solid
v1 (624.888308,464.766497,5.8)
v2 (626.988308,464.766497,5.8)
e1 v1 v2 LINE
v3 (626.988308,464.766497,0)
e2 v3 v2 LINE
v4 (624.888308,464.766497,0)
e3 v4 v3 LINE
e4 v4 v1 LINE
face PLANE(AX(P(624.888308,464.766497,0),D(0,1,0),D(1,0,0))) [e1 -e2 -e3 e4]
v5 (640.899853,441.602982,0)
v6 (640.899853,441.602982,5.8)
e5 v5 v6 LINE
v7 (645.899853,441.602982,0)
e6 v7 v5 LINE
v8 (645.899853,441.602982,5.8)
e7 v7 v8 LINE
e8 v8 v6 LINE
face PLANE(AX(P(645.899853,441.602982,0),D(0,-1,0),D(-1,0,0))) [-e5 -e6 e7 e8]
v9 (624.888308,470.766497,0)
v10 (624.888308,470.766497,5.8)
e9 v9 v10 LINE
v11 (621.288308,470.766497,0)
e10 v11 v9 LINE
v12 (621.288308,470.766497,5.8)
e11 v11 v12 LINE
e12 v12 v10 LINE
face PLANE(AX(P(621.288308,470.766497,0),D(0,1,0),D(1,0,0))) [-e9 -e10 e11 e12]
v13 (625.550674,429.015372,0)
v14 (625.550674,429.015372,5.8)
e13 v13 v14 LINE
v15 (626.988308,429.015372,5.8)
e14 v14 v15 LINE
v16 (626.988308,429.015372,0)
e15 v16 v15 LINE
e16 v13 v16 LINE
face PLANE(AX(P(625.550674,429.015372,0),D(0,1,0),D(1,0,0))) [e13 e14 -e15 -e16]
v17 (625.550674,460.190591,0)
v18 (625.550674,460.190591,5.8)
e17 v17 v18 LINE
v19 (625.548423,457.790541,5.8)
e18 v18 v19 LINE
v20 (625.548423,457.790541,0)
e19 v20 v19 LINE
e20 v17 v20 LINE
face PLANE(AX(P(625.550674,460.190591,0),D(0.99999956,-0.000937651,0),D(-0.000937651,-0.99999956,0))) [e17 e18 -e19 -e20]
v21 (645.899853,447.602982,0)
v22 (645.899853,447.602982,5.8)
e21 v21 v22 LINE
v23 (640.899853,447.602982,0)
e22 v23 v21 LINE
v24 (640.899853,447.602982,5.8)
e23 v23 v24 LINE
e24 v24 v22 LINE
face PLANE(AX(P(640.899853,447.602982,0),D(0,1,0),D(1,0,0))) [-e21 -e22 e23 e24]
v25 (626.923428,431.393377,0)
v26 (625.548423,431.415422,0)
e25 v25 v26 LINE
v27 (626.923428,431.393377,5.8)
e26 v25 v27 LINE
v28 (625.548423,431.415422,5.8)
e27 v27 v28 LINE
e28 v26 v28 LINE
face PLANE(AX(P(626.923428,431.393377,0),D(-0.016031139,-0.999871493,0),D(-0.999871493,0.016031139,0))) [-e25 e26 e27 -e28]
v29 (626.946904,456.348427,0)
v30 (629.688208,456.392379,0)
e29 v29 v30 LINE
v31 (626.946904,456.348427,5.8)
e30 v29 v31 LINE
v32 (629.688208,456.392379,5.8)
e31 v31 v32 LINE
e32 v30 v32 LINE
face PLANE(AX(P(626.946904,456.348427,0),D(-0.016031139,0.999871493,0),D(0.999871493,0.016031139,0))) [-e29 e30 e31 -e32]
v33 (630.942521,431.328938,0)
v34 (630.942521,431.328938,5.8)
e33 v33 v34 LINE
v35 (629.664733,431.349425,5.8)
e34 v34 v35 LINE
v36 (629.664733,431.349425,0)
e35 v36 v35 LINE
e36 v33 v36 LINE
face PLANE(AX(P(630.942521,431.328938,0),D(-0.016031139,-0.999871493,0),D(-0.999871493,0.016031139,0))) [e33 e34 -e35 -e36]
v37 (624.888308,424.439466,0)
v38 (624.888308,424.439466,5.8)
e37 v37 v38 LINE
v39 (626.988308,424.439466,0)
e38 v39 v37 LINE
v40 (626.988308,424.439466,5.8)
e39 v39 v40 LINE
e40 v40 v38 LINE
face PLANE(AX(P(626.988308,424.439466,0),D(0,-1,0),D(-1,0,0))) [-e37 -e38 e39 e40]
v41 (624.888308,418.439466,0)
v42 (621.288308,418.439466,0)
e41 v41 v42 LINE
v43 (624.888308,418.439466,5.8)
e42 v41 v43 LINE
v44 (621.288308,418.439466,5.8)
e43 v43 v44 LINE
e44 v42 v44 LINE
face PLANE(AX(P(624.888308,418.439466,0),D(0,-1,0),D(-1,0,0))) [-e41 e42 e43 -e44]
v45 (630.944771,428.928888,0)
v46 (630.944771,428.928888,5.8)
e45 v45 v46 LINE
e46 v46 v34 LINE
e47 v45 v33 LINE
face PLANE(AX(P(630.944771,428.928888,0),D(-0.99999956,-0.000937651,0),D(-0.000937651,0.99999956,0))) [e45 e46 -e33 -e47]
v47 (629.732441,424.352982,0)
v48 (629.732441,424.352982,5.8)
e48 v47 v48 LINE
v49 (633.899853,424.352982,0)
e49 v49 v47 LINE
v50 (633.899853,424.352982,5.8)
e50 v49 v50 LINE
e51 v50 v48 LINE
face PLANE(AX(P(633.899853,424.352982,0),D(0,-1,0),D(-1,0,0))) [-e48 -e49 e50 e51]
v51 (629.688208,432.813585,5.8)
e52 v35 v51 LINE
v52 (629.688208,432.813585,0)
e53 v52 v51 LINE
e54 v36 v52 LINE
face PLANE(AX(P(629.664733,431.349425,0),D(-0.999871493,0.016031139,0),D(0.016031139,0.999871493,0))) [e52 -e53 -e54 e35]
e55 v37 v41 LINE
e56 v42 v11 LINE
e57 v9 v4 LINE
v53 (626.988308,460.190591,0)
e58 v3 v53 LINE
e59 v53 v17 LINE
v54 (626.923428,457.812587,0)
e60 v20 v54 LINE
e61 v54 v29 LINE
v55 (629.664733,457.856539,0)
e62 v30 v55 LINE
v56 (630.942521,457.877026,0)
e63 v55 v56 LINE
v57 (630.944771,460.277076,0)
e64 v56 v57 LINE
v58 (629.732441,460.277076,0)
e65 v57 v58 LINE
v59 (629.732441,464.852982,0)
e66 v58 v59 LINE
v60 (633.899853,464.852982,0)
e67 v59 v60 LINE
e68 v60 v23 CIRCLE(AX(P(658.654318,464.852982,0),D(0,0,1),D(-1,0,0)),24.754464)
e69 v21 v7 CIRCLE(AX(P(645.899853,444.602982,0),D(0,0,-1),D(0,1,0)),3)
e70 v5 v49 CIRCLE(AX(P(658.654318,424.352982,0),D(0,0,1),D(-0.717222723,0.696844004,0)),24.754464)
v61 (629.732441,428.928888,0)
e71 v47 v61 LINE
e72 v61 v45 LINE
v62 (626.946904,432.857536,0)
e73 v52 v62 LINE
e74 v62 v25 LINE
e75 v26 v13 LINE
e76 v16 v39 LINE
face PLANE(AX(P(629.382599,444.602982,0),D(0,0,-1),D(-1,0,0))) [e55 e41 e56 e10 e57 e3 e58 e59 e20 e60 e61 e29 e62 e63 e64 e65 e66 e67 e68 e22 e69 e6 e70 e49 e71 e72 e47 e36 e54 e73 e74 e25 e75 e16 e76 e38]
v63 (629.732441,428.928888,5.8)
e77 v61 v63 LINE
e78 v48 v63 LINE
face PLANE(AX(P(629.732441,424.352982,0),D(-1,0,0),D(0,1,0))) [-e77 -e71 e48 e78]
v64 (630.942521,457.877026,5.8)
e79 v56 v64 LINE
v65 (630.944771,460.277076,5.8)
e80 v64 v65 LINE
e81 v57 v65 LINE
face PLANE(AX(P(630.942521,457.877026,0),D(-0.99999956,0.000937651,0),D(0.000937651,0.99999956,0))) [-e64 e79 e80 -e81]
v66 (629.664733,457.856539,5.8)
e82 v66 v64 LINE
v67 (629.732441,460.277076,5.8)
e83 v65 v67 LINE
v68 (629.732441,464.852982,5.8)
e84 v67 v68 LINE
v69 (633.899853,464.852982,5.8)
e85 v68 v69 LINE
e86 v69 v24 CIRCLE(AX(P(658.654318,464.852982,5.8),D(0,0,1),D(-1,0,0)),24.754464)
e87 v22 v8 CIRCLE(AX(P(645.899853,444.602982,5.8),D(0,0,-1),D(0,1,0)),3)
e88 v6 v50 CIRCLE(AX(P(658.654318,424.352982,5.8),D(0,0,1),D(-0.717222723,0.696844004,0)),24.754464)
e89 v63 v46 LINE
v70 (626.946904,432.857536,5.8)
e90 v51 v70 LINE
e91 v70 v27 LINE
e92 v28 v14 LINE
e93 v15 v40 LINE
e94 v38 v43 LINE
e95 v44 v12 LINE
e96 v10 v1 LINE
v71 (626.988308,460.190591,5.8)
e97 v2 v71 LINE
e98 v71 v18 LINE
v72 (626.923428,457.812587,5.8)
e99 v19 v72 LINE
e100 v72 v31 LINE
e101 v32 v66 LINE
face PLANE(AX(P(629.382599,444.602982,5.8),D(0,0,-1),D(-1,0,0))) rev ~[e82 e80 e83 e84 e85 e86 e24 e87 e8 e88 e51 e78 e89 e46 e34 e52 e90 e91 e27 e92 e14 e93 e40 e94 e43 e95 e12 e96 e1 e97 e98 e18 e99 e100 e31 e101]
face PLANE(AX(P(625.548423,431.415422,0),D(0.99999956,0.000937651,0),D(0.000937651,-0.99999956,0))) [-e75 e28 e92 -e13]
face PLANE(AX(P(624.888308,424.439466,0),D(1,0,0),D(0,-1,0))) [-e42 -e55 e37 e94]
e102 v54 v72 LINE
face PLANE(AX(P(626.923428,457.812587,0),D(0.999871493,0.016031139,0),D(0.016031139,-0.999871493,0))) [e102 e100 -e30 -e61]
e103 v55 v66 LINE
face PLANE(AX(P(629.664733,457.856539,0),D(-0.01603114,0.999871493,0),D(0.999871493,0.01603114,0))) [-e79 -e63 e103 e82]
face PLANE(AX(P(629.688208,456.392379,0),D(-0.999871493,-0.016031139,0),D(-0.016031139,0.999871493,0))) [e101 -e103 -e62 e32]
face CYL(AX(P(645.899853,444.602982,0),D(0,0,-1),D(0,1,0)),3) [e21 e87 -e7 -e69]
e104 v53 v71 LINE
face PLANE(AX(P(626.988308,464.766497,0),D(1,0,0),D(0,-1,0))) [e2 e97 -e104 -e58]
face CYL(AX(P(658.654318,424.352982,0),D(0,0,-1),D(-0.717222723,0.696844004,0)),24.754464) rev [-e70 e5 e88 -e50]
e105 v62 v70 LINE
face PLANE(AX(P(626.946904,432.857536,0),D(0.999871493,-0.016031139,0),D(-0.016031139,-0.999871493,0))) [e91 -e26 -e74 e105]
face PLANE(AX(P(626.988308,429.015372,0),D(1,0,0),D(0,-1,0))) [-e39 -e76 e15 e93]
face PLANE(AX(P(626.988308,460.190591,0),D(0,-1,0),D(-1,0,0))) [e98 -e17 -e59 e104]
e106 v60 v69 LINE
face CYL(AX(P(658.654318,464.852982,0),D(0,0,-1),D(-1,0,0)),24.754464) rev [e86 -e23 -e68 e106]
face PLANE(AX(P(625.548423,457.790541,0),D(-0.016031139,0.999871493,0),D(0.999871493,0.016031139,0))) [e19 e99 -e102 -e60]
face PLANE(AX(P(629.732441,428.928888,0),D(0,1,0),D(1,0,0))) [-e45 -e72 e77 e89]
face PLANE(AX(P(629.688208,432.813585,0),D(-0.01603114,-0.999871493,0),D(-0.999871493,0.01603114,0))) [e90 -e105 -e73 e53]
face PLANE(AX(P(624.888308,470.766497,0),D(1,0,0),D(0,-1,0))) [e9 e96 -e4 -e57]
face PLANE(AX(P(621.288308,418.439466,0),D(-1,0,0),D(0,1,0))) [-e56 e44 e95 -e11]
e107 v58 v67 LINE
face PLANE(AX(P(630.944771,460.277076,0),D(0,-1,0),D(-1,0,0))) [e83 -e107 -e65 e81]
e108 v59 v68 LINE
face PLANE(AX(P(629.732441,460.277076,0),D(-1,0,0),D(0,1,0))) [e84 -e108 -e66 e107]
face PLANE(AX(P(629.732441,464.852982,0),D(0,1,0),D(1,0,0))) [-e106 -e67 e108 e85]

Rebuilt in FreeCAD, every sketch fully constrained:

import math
import FreeCAD as App
import Part
import Sketcher

V = App.Vector

doc = App.newDocument("Part")
body = doc.addObject("PartDesign::Body", "Body")

# Sketch on XY plane
sketch1 = doc.addObject("Sketcher::SketchObject", "Sketch")
body.addObject(sketch1)
sketch1.AttachmentSupport = (doc.XY_Plane, [""])
sketch1.MapMode = "FlatFace"
sketch1.addGeometry(Part.LineSegment(V(645.899853, 447.602982, 0), V(640.899853, 447.602982, 0)), False)
sketch1.addGeometry(Part.ArcOfCircle(Part.Circle(V(658.654318, 464.852982, 0), V(0, 0, 1), 24.754464), math.radians(-180), math.radians(-135.825657)), False)
sketch1.addGeometry(Part.LineSegment(V(633.899853, 464.852982, 0), V(629.732441, 464.852982, 0)), False)
sketch1.addGeometry(Part.LineSegment(V(629.732441, 464.852982, 0), V(629.732441, 460.277076, 0)), False)
sketch1.addGeometry(Part.LineSegment(V(629.732441, 460.277076, 0), V(630.944771, 460.277076, 0)), False)
sketch1.addGeometry(Part.LineSegment(V(630.944771, 460.277076, 0), V(630.942521, 457.877026, 0)), False)
sketch1.addGeometry(Part.LineSegment(V(630.942521, 457.877026, 0), V(629.664733, 457.856539, 0)), False)
sketch1.addGeometry(Part.LineSegment(V(629.664733, 457.856539, 0), V(629.688208, 456.392379, 0)), False)
sketch1.addGeometry(Part.LineSegment(V(629.688208, 456.392379, 0), V(626.946904, 456.348427, 0)), False)
sketch1.addGeometry(Part.LineSegment(V(626.946904, 456.348427, 0), V(626.923428, 457.812587, 0)), False)
sketch1.addGeometry(Part.LineSegment(V(626.923428, 457.812587, 0), V(625.548423, 457.790541, 0)), False)
sketch1.addGeometry(Part.LineSegment(V(625.548423, 457.790541, 0), V(625.550674, 460.190591, 0)), False)
sketch1.addGeometry(Part.LineSegment(V(625.550674, 460.190591, 0), V(626.988308, 460.190591, 0)), False)
sketch1.addGeometry(Part.LineSegment(V(626.988308, 460.190591, 0), V(626.988308, 464.766497, 0)), False)
sketch1.addGeometry(Part.LineSegment(V(626.988308, 464.766497, 0), V(624.888308, 464.766497, 0)), False)
sketch1.addGeometry(Part.LineSegment(V(624.888308, 464.766497, 0), V(624.888308, 470.766497, 0)), False)
sketch1.addGeometry(Part.LineSegment(V(624.888308, 470.766497, 0), V(621.288308, 470.766497, 0)), False)
sketch1.addGeometry(Part.LineSegment(V(621.288308, 470.766497, 0), V(621.288308, 418.439466, 0)), False)
sketch1.addGeometry(Part.LineSegment(V(621.288308, 418.439466, 0), V(624.888308, 418.439466, 0)), False)
sketch1.addGeometry(Part.LineSegment(V(624.888308, 418.439466, 0), V(624.888308, 424.439466, 0)), False)
sketch1.addGeometry(Part.LineSegment(V(624.888308, 424.439466, 0), V(626.988308, 424.439466, 0)), False)
sketch1.addGeometry(Part.LineSegment(V(626.988308, 424.439466, 0), V(626.988308, 429.015372, 0)), False)
sketch1.addGeometry(Part.LineSegment(V(626.988308, 429.015372, 0), V(625.550674, 429.015372, 0)), False)
sketch1.addGeometry(Part.LineSegment(V(625.550674, 429.015372, 0), V(625.548423, 431.415422, 0)), False)
sketch1.addGeometry(Part.LineSegment(V(625.548423, 431.415422, 0), V(626.923428, 431.393377, 0)), False)
sketch1.addGeometry(Part.LineSegment(V(626.923428, 431.393377, 0), V(626.946904, 432.857536, 0)), False)
sketch1.addGeometry(Part.LineSegment(V(626.946904, 432.857536, 0), V(629.688208, 432.813585, 0)), False)
sketch1.addGeometry(Part.LineSegment(V(629.688208, 432.813585, 0), V(629.664733, 431.349425, 0)), False)
sketch1.addGeometry(Part.LineSegment(V(629.664733, 431.349425, 0), V(630.942521, 431.328938, 0)), False)
sketch1.addGeometry(Part.LineSegment(V(630.942521, 431.328938, 0), V(630.944771, 428.928888, 0)), False)
sketch1.addGeometry(Part.LineSegment(V(630.944771, 428.928888, 0), V(629.732441, 428.928888, 0)), False)
sketch1.addGeometry(Part.LineSegment(V(629.732441, 428.928888, 0), V(629.732441, 424.352982, 0)), False)
sketch1.addGeometry(Part.LineSegment(V(629.732441, 424.352982, 0), V(633.899853, 424.352982, 0)), False)
sketch1.addGeometry(Part.ArcOfCircle(Part.Circle(V(658.654318, 424.352982, 0), V(0, 0, 1), 24.754464), math.radians(135.825657), math.radians(180)), False)
sketch1.addGeometry(Part.LineSegment(V(640.899853, 441.602982, 0), V(645.899853, 441.602982, 0)), False)
sketch1.addGeometry(Part.ArcOfCircle(Part.Circle(V(645.899853, 444.602982, 0), V(0, 0, 1), 3), math.radians(-90), math.radians(90)), False)
sketch1.addConstraint(Sketcher.Constraint("Coincident", 0, 2, 1, 2))
sketch1.addConstraint(Sketcher.Constraint("Coincident", 1, 1, 2, 1))
sketch1.addConstraint(Sketcher.Constraint("Coincident", 2, 2, 3, 1))
sketch1.addConstraint(Sketcher.Constraint("Coincident", 3, 2, 4, 1))
sketch1.addConstraint(Sketcher.Constraint("Coincident", 4, 2, 5, 1))
sketch1.addConstraint(Sketcher.Constraint("Coincident", 5, 2, 6, 1))
sketch1.addConstraint(Sketcher.Constraint("Coincident", 6, 2, 7, 1))
sketch1.addConstraint(Sketcher.Constraint("Coincident", 7, 2, 8, 1))
sketch1.addConstraint(Sketcher.Constraint("Coincident", 8, 2, 9, 1))
sketch1.addConstraint(Sketcher.Constraint("Coincident", 9, 2, 10, 1))
sketch1.addConstraint(Sketcher.Constraint("Coincident", 10, 2, 11, 1))
sketch1.addConstraint(Sketcher.Constraint("Coincident", 11, 2, 12, 1))
sketch1.addConstraint(Sketcher.Constraint("Coincident", 12, 2, 13, 1))
sketch1.addConstraint(Sketcher.Constraint("Coincident", 13, 2, 14, 1))
sketch1.addConstraint(Sketcher.Constraint("Coincident", 14, 2, 15, 1))
sketch1.addConstraint(Sketcher.Constraint("Coincident", 15, 2, 16, 1))
sketch1.addConstraint(Sketcher.Constraint("Coincident", 16, 2, 17, 1))
sketch1.addConstraint(Sketcher.Constraint("Coincident", 17, 2, 18, 1))
sketch1.addConstraint(Sketcher.Constraint("Coincident", 18, 2, 19, 1))
sketch1.addConstraint(Sketcher.Constraint("Coincident", 19, 2, 20, 1))
sketch1.addConstraint(Sketcher.Constraint("Coincident", 20, 2, 21, 1))
sketch1.addConstraint(Sketcher.Constraint("Coincident", 21, 2, 22, 1))
sketch1.addConstraint(Sketcher.Constraint("Coincident", 22, 2, 23, 1))
sketch1.addConstraint(Sketcher.Constraint("Coincident", 23, 2, 24, 1))
sketch1.addConstraint(Sketcher.Constraint("Coincident", 24, 2, 25, 1))
sketch1.addConstraint(Sketcher.Constraint("Coincident", 25, 2, 26, 1))
sketch1.addConstraint(Sketcher.Constraint("Coincident", 26, 2, 27, 1))
sketch1.addConstraint(Sketcher.Constraint("Coincident", 27, 2, 28, 1))
sketch1.addConstraint(Sketcher.Constraint("Coincident", 28, 2, 29, 1))
sketch1.addConstraint(Sketcher.Constraint("Coincident", 29, 2, 30, 1))
sketch1.addConstraint(Sketcher.Constraint("Coincident", 30, 2, 31, 1))
sketch1.addConstraint(Sketcher.Constraint("Coincident", 31, 2, 32, 1))
sketch1.addConstraint(Sketcher.Constraint("Coincident", 32, 2, 33, 2))
sketch1.addConstraint(Sketcher.Constraint("Coincident", 33, 1, 34, 1))
sketch1.addConstraint(Sketcher.Constraint("Tangent", 34, 2, 35, 1))
sketch1.addConstraint(Sketcher.Constraint("Tangent", 35, 2, 0, 1))
sketch1.addConstraint(Sketcher.Constraint("Horizontal", 0))
sketch1.addConstraint(Sketcher.Constraint("Horizontal", 2))
sketch1.addConstraint(Sketcher.Constraint("Vertical", 3))
sketch1.addConstraint(Sketcher.Constraint("Horizontal", 4))
sketch1.addConstraint(Sketcher.Constraint("Horizontal", 12))
sketch1.addConstraint(Sketcher.Constraint("Vertical", 13))
sketch1.addConstraint(Sketcher.Constraint("Horizontal", 14))
sketch1.addConstraint(Sketcher.Constraint("Vertical", 15))
sketch1.addConstraint(Sketcher.Constraint("Horizontal", 16))
sketch1.addConstraint(Sketcher.Constraint("Vertical", 17))
sketch1.addConstraint(Sketcher.Constraint("Horizontal", 18))
sketch1.addConstraint(Sketcher.Constraint("Vertical", 19))
sketch1.addConstraint(Sketcher.Constraint("Horizontal", 20))
sketch1.addConstraint(Sketcher.Constraint("Vertical", 21))
sketch1.addConstraint(Sketcher.Constraint("Horizontal", 22))
sketch1.addConstraint(Sketcher.Constraint("Horizontal", 30))
sketch1.addConstraint(Sketcher.Constraint("Vertical", 31))
sketch1.addConstraint(Sketcher.Constraint("Horizontal", 32))
sketch1.addConstraint(Sketcher.Constraint("Horizontal", 34))
sketch1.addConstraint(Sketcher.Constraint("Equal", 1, 33))
sketch1.addConstraint(Sketcher.Constraint("Perpendicular", 6, 7))
sketch1.addConstraint(Sketcher.Constraint("Perpendicular", 7, 8))
sketch1.addConstraint(Sketcher.Constraint("Perpendicular", 8, 9))
sketch1.addConstraint(Sketcher.Constraint("Perpendicular", 9, 10))
sketch1.addConstraint(Sketcher.Constraint("Parallel", 5, 11))
sketch1.addConstraint(Sketcher.Constraint("Perpendicular", 24, 25))
sketch1.addConstraint(Sketcher.Constraint("Perpendicular", 25, 26))
sketch1.addConstraint(Sketcher.Constraint("Perpendicular", 26, 27))
sketch1.addConstraint(Sketcher.Constraint("Perpendicular", 27, 28))
sketch1.addConstraint(Sketcher.Constraint("Parallel", 23, 29))
sketch1.addConstraint(Sketcher.Constraint("Horizontal", 33, 3, 31, 2))
sketch1.addConstraint(Sketcher.Constraint("Vertical", 1, 3, 33, 3))
sketch1.addConstraint(Sketcher.Constraint("Vertical", 15, 2, 18, 2))
sketch1.addConstraint(Sketcher.Constraint("Vertical", 13, 2, 20, 2))
sketch1.addConstraint(Sketcher.Constraint("Vertical", 11, 2, 22, 2))
sketch1.addConstraint(Sketcher.Constraint("Vertical", 10, 2, 23, 2))
sketch1.addConstraint(Sketcher.Constraint("Vertical", 9, 2, 24, 2))
sketch1.addConstraint(Sketcher.Constraint("Vertical", 8, 2, 25, 2))
sketch1.addConstraint(Sketcher.Constraint("Vertical", 7, 2, 26, 2))
sketch1.addConstraint(Sketcher.Constraint("Vertical", 6, 2, 27, 2))
sketch1.addConstraint(Sketcher.Constraint("Vertical", 5, 2, 28, 2))
sketch1.addConstraint(Sketcher.Constraint("Vertical", 3, 2, 30, 2))
sketch1.addConstraint(Sketcher.Constraint("Vertical", 0, 2, 33, 1))
sketch1.addConstraint(Sketcher.Constraint("Equal", 3, 13))
sketch1.addConstraint(Sketcher.Constraint("Equal", 15, 19))
sketch1.addConstraint(Sketcher.Constraint("Equal", 13, 21))
sketch1.addConstraint(Sketcher.Constraint("Equal", 21, 31))
sketch1.addConstraint(Sketcher.Constraint("Equal", 7, 9))
sketch1.addConstraint(Sketcher.Constraint("Equal", 5, 11))
sketch1.addConstraint(Sketcher.Constraint("Equal", 11, 23))
sketch1.addConstraint(Sketcher.Constraint("Equal", 9, 25))
sketch1.addConstraint(Sketcher.Constraint("Equal", 23, 29))
sketch1.addConstraint(Sketcher.Constraint("Radius", 35, 3.0))
sketch1.addConstraint(Sketcher.Constraint("DistanceX", 0, 2, 0, 1, 5.0))
sketch1.addConstraint(Sketcher.Constraint("DistanceY", 15, 1, 15, 2, 6.0))
sketch1.addConstraint(Sketcher.Constraint("DistanceX", 14, 2, 14, 1, 2.1))
sketch1.addConstraint(Sketcher.Constraint("DistanceX", 16, 2, 16, 1, 3.6))
sketch1.addConstraint(Sketcher.Constraint("DistanceX", 1, 1, 0, 2, 7.0))
sketch1.addConstraint(Sketcher.Constraint("DistanceY", 33, 3, 1, 3, 40.5))
sketch1.addConstraint(Sketcher.Constraint("DistanceY", 33, 3, 1, 1, 40.5))
sketch1.addConstraint(Sketcher.Constraint("DistanceX", 4, 1, 4, 2, 1.21233))
sketch1.addConstraint(Sketcher.Constraint("DistanceY", 17, 2, 17, 1, 52.327031))
sketch1.addConstraint(Sketcher.Constraint("DistanceY", 8, 2, 5, 2, 1.528599))
sketch1.addConstraint(Sketcher.Constraint("DistanceX", 17, 2, 7, 2, 8.3999))
sketch1.addConstraint(Sketcher.Constraint("Distance", 5, 2.400051))
sketch1.addConstraint(Sketcher.Constraint("Distance", 10, 1.375182))
sketch1.addConstraint(Sketcher.Constraint("DistanceX", 2, 2, 2, 1, 4.167412))
sketch1.addConstraint(Sketcher.Constraint("DistanceX", 12, 1, 12, 2, 1.437635))
sketch1.addConstraint(Sketcher.Constraint("DistanceY", 3, 2, 3, 1, 4.575906))
sketch1.addConstraint(Sketcher.Constraint("DistanceY", -1, 1, 1, 3, 464.852982))
sketch1.addConstraint(Sketcher.Constraint("DistanceX", -1, 1, 2, 2, 629.732441))
sketch1.addConstraint(Sketcher.Constraint("DistanceX", -1, 1, 5, 2, 630.942521))
sketch1.addConstraint(Sketcher.Constraint("DistanceX", -1, 1, 7, 2, 629.688208))
pad1 = doc.addObject("PartDesign::Pad", "Pad")
body.addObject(pad1)
pad1.Profile = sketch1
pad1.Length = 5.8

doc.recompute()
